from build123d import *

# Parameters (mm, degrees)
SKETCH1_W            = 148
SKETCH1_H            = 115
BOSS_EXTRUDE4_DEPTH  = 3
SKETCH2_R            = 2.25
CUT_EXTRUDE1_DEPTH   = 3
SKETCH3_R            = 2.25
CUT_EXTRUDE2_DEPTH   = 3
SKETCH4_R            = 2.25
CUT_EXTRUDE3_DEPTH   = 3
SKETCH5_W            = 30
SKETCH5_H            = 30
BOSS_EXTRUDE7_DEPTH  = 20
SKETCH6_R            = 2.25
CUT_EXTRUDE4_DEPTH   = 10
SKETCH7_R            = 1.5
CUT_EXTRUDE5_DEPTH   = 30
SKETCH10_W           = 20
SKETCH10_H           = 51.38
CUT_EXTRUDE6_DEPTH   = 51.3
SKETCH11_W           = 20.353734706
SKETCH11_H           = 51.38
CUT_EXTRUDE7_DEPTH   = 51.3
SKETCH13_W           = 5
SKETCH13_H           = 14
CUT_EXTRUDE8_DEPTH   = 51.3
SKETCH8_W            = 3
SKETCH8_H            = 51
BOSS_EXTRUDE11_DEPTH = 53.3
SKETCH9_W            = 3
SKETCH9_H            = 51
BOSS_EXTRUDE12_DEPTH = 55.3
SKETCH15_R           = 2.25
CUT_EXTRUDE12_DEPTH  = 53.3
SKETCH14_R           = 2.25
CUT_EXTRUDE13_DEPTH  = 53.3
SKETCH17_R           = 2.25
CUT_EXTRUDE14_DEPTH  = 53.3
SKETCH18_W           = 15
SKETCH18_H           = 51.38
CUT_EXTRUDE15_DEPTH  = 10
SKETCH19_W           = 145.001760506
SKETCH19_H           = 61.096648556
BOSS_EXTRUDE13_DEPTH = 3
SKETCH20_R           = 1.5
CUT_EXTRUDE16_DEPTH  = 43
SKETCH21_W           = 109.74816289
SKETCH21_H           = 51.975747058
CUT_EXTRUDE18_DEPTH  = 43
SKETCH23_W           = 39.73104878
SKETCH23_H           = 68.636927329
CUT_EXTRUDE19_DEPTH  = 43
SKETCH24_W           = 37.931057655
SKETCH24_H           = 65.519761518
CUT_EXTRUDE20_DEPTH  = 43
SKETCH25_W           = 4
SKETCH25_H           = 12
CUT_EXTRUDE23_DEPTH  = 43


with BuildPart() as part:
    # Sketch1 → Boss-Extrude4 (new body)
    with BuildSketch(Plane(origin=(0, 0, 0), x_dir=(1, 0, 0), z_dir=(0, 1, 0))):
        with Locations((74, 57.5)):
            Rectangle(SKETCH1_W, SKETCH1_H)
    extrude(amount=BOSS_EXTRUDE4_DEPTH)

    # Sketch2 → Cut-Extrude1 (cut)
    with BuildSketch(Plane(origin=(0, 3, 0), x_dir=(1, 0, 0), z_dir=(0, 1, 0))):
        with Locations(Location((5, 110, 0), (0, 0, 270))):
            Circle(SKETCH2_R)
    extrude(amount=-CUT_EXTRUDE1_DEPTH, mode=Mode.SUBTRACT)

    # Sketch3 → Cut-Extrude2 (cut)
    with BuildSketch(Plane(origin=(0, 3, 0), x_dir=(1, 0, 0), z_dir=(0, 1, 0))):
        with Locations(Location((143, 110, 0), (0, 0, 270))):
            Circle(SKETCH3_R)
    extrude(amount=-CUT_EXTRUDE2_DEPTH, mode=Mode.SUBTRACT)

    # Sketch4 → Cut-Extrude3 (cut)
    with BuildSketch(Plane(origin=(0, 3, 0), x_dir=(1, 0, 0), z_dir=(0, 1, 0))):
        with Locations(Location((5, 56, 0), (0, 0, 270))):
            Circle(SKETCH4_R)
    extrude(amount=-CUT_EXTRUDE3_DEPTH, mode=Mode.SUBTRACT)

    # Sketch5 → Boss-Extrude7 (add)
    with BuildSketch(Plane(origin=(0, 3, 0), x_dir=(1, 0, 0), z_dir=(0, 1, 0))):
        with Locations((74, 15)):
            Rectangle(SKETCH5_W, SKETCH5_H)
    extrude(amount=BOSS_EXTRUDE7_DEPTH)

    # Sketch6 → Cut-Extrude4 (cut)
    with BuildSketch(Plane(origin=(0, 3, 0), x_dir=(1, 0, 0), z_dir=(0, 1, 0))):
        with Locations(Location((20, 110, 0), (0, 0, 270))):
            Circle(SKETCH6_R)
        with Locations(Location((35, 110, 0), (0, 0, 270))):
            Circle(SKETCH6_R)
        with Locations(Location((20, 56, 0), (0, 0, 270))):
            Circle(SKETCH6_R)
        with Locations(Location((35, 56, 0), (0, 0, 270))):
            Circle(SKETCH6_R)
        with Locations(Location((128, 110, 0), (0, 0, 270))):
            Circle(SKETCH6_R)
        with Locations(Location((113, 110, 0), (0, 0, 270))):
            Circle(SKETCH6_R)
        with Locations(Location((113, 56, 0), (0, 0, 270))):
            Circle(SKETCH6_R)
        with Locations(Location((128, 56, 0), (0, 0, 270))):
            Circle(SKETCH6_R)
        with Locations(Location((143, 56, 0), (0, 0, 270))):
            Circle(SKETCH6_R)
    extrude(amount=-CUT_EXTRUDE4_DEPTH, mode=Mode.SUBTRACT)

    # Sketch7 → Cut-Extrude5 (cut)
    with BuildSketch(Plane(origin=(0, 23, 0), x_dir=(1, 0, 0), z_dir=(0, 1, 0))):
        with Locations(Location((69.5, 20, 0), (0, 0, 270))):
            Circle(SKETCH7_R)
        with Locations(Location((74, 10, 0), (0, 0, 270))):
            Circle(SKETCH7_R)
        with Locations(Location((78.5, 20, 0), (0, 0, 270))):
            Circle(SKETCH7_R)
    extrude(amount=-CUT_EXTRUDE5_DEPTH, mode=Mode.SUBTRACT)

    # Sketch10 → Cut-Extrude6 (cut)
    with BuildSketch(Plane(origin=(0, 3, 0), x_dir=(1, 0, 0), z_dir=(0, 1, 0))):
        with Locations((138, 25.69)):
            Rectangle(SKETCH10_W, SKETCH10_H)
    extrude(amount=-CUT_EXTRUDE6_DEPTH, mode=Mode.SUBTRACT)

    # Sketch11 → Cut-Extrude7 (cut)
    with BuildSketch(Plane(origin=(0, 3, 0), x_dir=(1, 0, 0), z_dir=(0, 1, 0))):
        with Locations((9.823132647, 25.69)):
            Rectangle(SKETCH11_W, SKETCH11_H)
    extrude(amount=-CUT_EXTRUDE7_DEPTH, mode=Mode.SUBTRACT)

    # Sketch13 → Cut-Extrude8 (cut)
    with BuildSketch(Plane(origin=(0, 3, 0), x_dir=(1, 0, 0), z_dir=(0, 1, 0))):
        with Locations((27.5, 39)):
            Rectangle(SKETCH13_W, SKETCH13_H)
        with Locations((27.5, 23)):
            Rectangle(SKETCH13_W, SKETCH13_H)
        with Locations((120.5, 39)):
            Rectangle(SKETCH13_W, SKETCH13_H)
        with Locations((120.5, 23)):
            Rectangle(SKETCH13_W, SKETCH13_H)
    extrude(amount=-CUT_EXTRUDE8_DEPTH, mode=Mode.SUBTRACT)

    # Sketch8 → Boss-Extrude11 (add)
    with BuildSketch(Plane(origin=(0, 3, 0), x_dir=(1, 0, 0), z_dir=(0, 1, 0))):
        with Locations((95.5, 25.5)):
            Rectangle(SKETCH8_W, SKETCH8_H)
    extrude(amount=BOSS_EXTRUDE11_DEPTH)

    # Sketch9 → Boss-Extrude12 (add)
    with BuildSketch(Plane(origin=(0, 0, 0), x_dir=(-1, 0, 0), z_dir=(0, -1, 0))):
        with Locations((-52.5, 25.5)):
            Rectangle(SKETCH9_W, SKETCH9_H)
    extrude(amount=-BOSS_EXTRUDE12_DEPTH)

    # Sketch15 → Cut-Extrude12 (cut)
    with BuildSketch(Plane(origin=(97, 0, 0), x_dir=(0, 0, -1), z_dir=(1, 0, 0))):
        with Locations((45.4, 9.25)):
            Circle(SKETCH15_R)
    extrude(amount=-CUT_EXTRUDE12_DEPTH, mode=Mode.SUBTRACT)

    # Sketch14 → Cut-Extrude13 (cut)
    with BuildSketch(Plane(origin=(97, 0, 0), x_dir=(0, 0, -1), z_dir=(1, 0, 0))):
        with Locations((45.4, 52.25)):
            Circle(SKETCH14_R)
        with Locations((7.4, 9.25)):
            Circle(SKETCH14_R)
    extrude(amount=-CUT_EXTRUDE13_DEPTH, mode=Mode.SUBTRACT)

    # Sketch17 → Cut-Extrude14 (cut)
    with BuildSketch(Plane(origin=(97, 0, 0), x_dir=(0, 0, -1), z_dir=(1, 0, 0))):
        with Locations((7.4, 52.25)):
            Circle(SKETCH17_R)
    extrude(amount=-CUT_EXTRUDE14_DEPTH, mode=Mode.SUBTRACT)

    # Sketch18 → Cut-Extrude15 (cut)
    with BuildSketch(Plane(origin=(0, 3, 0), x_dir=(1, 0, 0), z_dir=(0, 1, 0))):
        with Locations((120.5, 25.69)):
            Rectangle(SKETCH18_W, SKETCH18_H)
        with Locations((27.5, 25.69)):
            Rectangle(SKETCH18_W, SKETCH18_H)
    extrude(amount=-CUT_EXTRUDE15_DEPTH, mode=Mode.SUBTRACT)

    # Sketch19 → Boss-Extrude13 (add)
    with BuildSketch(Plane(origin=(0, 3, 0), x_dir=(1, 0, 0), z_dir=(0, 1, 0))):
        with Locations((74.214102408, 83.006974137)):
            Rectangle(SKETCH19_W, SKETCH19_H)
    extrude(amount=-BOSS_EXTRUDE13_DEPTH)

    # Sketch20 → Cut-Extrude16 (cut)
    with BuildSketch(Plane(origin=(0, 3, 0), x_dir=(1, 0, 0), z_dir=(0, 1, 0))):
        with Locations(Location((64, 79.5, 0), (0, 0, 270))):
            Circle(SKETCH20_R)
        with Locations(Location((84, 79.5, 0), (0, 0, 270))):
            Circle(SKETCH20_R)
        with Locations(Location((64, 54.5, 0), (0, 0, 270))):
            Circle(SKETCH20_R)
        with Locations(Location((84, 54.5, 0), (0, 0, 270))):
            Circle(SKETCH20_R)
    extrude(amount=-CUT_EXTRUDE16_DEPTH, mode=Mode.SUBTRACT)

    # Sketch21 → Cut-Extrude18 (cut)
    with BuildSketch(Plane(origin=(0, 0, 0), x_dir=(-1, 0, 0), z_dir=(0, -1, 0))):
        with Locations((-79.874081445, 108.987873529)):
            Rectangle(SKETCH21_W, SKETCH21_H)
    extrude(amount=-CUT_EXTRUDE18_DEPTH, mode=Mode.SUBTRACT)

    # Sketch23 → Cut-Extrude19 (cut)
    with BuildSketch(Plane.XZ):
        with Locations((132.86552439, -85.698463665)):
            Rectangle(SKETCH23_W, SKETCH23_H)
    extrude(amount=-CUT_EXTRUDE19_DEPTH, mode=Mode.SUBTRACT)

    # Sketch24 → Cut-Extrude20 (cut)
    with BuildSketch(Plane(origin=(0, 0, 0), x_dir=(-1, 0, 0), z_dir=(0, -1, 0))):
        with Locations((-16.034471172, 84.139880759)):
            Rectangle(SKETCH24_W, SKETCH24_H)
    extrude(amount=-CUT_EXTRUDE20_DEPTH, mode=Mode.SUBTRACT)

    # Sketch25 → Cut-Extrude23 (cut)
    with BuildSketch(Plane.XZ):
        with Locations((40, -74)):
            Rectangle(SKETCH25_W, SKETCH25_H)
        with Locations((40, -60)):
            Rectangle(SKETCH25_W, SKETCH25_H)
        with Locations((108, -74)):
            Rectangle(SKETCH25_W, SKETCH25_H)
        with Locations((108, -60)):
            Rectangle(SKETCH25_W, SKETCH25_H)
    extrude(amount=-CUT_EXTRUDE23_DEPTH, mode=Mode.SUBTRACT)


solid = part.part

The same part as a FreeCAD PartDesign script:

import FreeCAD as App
import Part
import Sketcher

V = App.Vector

doc = App.newDocument("Part")
body = doc.addObject("PartDesign::Body", "Body")

sketch1 = body.newObject("Sketcher::SketchObject", "Sketch")
sketch1.AttachmentSupport = (doc.getObject("XZ_Plane"), [""])
sketch1.MapMode = "FlatFace"
sketch1.addGeometry(Part.LineSegment(V(0, -115, 0), V(0, 0, 0)), False)
sketch1.addGeometry(Part.LineSegment(V(0, 0, 0), V(148, 0, 0)), False)
sketch1.addGeometry(Part.LineSegment(V(148, 0, 0), V(148, -115, 0)), False)
sketch1.addGeometry(Part.LineSegment(V(148, -115, 0), V(0, -115, 0)), False)
sketch1.addConstraint(Sketcher.Constraint("Coincident", 0, 2, 1, 1))
sketch1.addConstraint(Sketcher.Constraint("Coincident", 1, 2, 2, 1))
sketch1.addConstraint(Sketcher.Constraint("Coincident", 2, 2, 3, 1))
sketch1.addConstraint(Sketcher.Constraint("Coincident", 3, 2, 0, 1))
sketch1.addConstraint(Sketcher.Constraint("Vertical", 0))
sketch1.addConstraint(Sketcher.Constraint("Horizontal", 1))
sketch1.addConstraint(Sketcher.Constraint("Vertical", 2))
sketch1.addConstraint(Sketcher.Constraint("Horizontal", 3))
sketch1.addConstraint(Sketcher.Constraint("Coincident", 0, 2, -1, 1))
sketch1.addConstraint(Sketcher.Constraint("DistanceX", 1, 1, 1, 2, 148.0))
sketch1.addConstraint(Sketcher.Constraint("DistanceY", 0, 1, 0, 2, 115.0))
pad1 = body.newObject("PartDesign::Pad", "Pad")
pad1.Profile = sketch1
pad1.Length = 3
pad1.Reversed = True

sketch2 = body.newObject("Sketcher::SketchObject", "Sketch001")
sketch2.AttachmentSupport = (doc.getObject("XZ_Plane"), [""])
sketch2.MapMode = "FlatFace"
sketch2.AttachmentOffset = App.Placement(V(0, 0, -3), App.Rotation())
sketch2.addGeometry(Part.Circle(V(5, -110, 0), V(0, 0, 1), 2.2), False)
sketch2.addConstraint(Sketcher.Constraint("Diameter", 0, 4.5))
sketch2.addConstraint(Sketcher.Constraint("DistanceX", -1, 1, 0, 3, 5.0))
sketch2.addConstraint(Sketcher.Constraint("DistanceY", 0, 3, -1, 1, 110.0))
pocket1 = body.newObject("PartDesign::Pocket", "Pocket")
pocket1.Profile = sketch2
pocket1.Length = 3
pocket1.Reversed = True

sketch3 = body.newObject("Sketcher::SketchObject", "Sketch002")
sketch3.AttachmentSupport = (doc.getObject("XZ_Plane"), [""])
sketch3.MapMode = "FlatFace"
sketch3.AttachmentOffset = App.Placement(V(0, 0, -3), App.Rotation())
sketch3.addGeometry(Part.Circle(V(143, -110, 0), V(0, 0, 1), 2.2), False)
sketch3.addConstraint(Sketcher.Constraint("Diameter", 0, 4.5))
sketch3.addConstraint(Sketcher.Constraint("DistanceX", -1, 1, 0, 3, 143.0))
sketch3.addConstraint(Sketcher.Constraint("DistanceY", 0, 3, -1, 1, 110.0))
pocket2 = body.newObject("PartDesign::Pocket", "Pocket001")
pocket2.Profile = sketch3
pocket2.Length = 3
pocket2.Reversed = True

sketch4 = body.newObject("Sketcher::SketchObject", "Sketch003")
sketch4.AttachmentSupport = (doc.getObject("XZ_Plane"), [""])
sketch4.MapMode = "FlatFace"
sketch4.AttachmentOffset = App.Placement(V(0, 0, -3), App.Rotation())
sketch4.addGeometry(Part.Circle(V(5, -56, 0), V(0, 0, 1), 2.2), False)
sketch4.addConstraint(Sketcher.Constraint("Diameter", 0, 4.5))
sketch4.addConstraint(Sketcher.Constraint("DistanceX", -1, 1, 0, 3, 5.0))
sketch4.addConstraint(Sketcher.Constraint("DistanceY", 0, 3, -1, 1, 56.0))
pocket3 = body.newObject("PartDesign::Pocket", "Pocket002")
pocket3.Profile = sketch4
pocket3.Length = 3
pocket3.Reversed = True

sketch5 = body.newObject("Sketcher::SketchObject", "Sketch004")
sketch5.AttachmentSupport = (doc.getObject("XZ_Plane"), [""])
sketch5.MapMode = "FlatFace"
sketch5.AttachmentOffset = App.Placement(V(0, 0, -3), App.Rotation())
sketch5.addGeometry(Part.LineSegment(V(59, -30, 0), V(59, 0, 0)), False)
sketch5.addGeometry(Part.LineSegment(V(59, 0, 0), V(89, 0, 0)), False)
sketch5.addGeometry(Part.LineSegment(V(89, 0, 0), V(89, -30, 0)), False)
sketch5.addGeometry(Part.LineSegment(V(89, -30, 0), V(59, -30, 0)), False)
sketch5.addConstraint(Sketcher.Constraint("Coincident", 0, 2, 1, 1))
sketch5.addConstraint(Sketcher.Constraint("Coincident", 1, 2, 2, 1))
sketch5.addConstraint(Sketcher.Constraint("Coincident", 2, 2, 3, 1))
sketch5.addConstraint(Sketcher.Constraint("Coincident", 3, 2, 0, 1))
sketch5.addConstraint(Sketcher.Constraint("Vertical", 0))
sketch5.addConstraint(Sketcher.Constraint("Horizontal", 1))
sketch5.addConstraint(Sketcher.Constraint("Vertical", 2))
sketch5.addConstraint(Sketcher.Constraint("Horizontal", 3))
sketch5.addConstraint(Sketcher.Constraint("PointOnObject", 0, 2, -1))
sketch5.addConstraint(Sketcher.Constraint("Equal", 3, 0))
sketch5.addConstraint(Sketcher.Constraint("DistanceX", 1, 1, 1, 2, 30.0))
sketch5.addConstraint(Sketcher.Constraint("DistanceX", -1, 1, 0, 2, 59.0))
pad2 = body.newObject("PartDesign::Pad", "Pad001")
pad2.Profile = sketch5
pad2.Length = 20
pad2.Reversed = True

sketch6 = body.newObject("Sketcher::SketchObject", "Sketch005")
sketch6.AttachmentSupport = (doc.getObject("XZ_Plane"), [""])
sketch6.MapMode = "FlatFace"
sketch6.AttachmentOffset = App.Placement(V(0, 0, -3), App.Rotation())
sketch6.addGeometry(Part.Circle(V(20, -110, 0), V(0, 0, 1), 2.2), False)
sketch6.addGeometry(Part.Circle(V(35, -110, 0), V(0, 0, 1), 2.2), False)
sketch6.addGeometry(Part.Circle(V(20, -56, 0), V(0, 0, 1), 2.2), False)
sketch6.addGeometry(Part.Circle(V(35, -56, 0), V(0, 0, 1), 2.2), False)
sketch6.addGeometry(Part.Circle(V(128, -110, 0), V(0, 0, 1), 2.2), False)
sketch6.addGeometry(Part.Circle(V(113, -110, 0), V(0, 0, 1), 2.2), False)
sketch6.addGeometry(Part.Circle(V(113, -56, 0), V(0, 0, 1), 2.2), False)
sketch6.addGeometry(Part.Circle(V(128, -56, 0), V(0, 0, 1), 2.2), False)
sketch6.addGeometry(Part.Circle(V(143, -56, 0), V(0, 0, 1), 2.2), False)
sketch6.addConstraint(Sketcher.Constraint("Equal", 0, 1))
sketch6.addConstraint(Sketcher.Constraint("Equal", 1, 2))
sketch6.addConstraint(Sketcher.Constraint("Equal", 2, 3))
sketch6.addConstraint(Sketcher.Constraint("Equal", 3, 4))
sketch6.addConstraint(Sketcher.Constraint("Equal", 4, 5))
sketch6.addConstraint(Sketcher.Constraint("Equal", 5, 6))
sketch6.addConstraint(Sketcher.Constraint("Equal", 6, 7))
sketch6.addConstraint(Sketcher.Constraint("Equal", 7, 8))
sketch6.addConstraint(Sketcher.Constraint("Horizontal", 0, 3, 1, 3))
sketch6.addConstraint(Sketcher.Constraint("Horizontal", 2, 3, 3, 3))
sketch6.addConstraint(Sketcher.Constraint("Horizontal", 1, 3, 4, 3))
sketch6.addConstraint(Sketcher.Constraint("Horizontal", 4, 3, 5, 3))
sketch6.addConstraint(Sketcher.Constraint("Horizontal", 3, 3, 6, 3))
sketch6.addConstraint(Sketcher.Constraint("Horizontal", 6, 3, 7, 3))
sketch6.addConstraint(Sketcher.Constraint("Horizontal", 7, 3, 8, 3))
sketch6.addConstraint(Sketcher.Constraint("Vertical", 0, 3, 2, 3))
sketch6.addConstraint(Sketcher.Constraint("Vertical", 1, 3, 3, 3))
sketch6.addConstraint(Sketcher.Constraint("Vertical", 5, 3, 6, 3))
sketch6.addConstraint(Sketcher.Constraint("Vertical", 4, 3, 7, 3))
sketch6.addConstraint(Sketcher.Constraint("Diameter", 0, 4.5))
sketch6.addConstraint(Sketcher.Constraint("DistanceX", -1, 1, 0, 3, 20.0))
sketch6.addConstraint(Sketcher.Constraint("DistanceY", 0, 3, -1, 1, 110.0))
sketch6.addConstraint(Sketcher.Constraint("DistanceX", -1, 1, 1, 3, 35.0))
sketch6.addConstraint(Sketcher.Constraint("DistanceY", 2, 3, -1, 1, 56.0))
sketch6.addConstraint(Sketcher.Constraint("DistanceX", -1, 1, 4, 3, 128.0))
sketch6.addConstraint(Sketcher.Constraint("DistanceX", -1, 1, 5, 3, 113.0))
sketch6.addConstraint(Sketcher.Constraint("DistanceX", -1, 1, 8, 3, 143.0))
pocket4 = body.newObject("PartDesign::Pocket", "Pocket003")
pocket4.Profile = sketch6
pocket4.Length = 10
pocket4.Reversed = True

sketch7 = body.newObject("Sketcher::SketchObject", "Sketch006")
sketch7.AttachmentSupport = (doc.getObject("XZ_Plane"), [""])
sketch7.MapMode = "FlatFace"
sketch7.AttachmentOffset = App.Placement(V(0, 0, -23), App.Rotation())
sketch7.addGeometry(Part.Circle(V(69.5, -20, 0), V(0, 0, 1), 1.5), False)
sketch7.addGeometry(Part.Circle(V(74, -10, 0), V(0, 0, 1), 1.5), False)
sketch7.addGeometry(Part.Circle(V(78.5, -20, 0), V(0, 0, 1), 1.5), False)
sketch7.addConstraint(Sketcher.Constraint("Equal", 0, 1))
sketch7.addConstraint(Sketcher.Constraint("Equal", 1, 2))
sketch7.addConstraint(Sketcher.Constraint("Horizontal", 0, 3, 2, 3))
sketch7.addConstraint(Sketcher.Constraint("Diameter", 0, 3.0))
sketch7.addConstraint(Sketcher.Constraint("DistanceY", 0, 3, -1, 1, 20.0))
sketch7.addConstraint(Sketcher.Constraint("DistanceX", -1, 1, 1, 3, 74.0))
sketch7.addConstraint(Sketcher.Constraint("DistanceY", 1, 3, -1, 1, 10.0))
sketch7.addConstraint(Sketcher.Constraint("DistanceX", 0, 3, 2, 3, 9.0))
sketch7.addConstraint(Sketcher.Constraint("DistanceX", -1, 1, 0, 3, 69.5))
pocket5 = body.newObject("PartDesign::Pocket", "Pocket004")
pocket5.Profile = sketch7
pocket5.Length = 30
pocket5.Reversed = True

sketch8 = body.newObject("Sketcher::SketchObject", "Sketch007")
sketch8.AttachmentSupport = (doc.getObject("XZ_Plane"), [""])
sketch8.MapMode = "FlatFace"
sketch8.AttachmentOffset = App.Placement(V(0, 0, -3), App.Rotation())
sketch8.addGeometry(Part.LineSegment(V(128, -51, 0), V(128, 0, 0)), False)
sketch8.addGeometry(Part.LineSegment(V(128, 0, 0), V(148, 0, 0)), False)
sketch8.addGeometry(Part.LineSegment(V(148, 0, 0), V(148, -51, 0)), False)
sketch8.addGeometry(Part.LineSegment(V(148, -51, 0), V(128, -51, 0)), False)
sketch8.addConstraint(Sketcher.Constraint("Coincident", 0, 2, 1, 1))
sketch8.addConstraint(Sketcher.Constraint("Coincident", 1, 2, 2, 1))
sketch8.addConstraint(Sketcher.Constraint("Coincident", 2, 2, 3, 1))
sketch8.addConstraint(Sketcher.Constraint("Coincident", 3, 2, 0, 1))
sketch8.addConstraint(Sketcher.Constraint("Vertical", 0))
sketch8.addConstraint(Sketcher.Constraint("Horizontal", 1))
sketch8.addConstraint(Sketcher.Constraint("Vertical", 2))
sketch8.addConstraint(Sketcher.Constraint("Horizontal", 3))
sketch8.addConstraint(Sketcher.Constraint("PointOnObject", 0, 2, -1))
sketch8.addConstraint(Sketcher.Constraint("DistanceX", 1, 1, 1, 2, 20.0))
sketch8.addConstraint(Sketcher.Constraint("DistanceX", -1, 1, 0, 2, 128.0))
sketch8.addConstraint(Sketcher.Constraint("DistanceY", 0, 1, 0, 2, 51.38))
pocket6 = body.newObject("PartDesign::Pocket", "Pocket005")
pocket6.Profile = sketch8
pocket6.Length = 51.3
pocket6.Reversed = True

sketch9 = body.newObject("Sketcher::SketchObject", "Sketch008")
sketch9.AttachmentSupport = (doc.getObject("XZ_Plane"), [""])
sketch9.MapMode = "FlatFace"
sketch9.AttachmentOffset = App.Placement(V(0, 0, -3), App.Rotation())
sketch9.addGeometry(Part.LineSegment(V(0, -51, 0), V(0, 0, 0)), False)
sketch9.addGeometry(Part.LineSegment(V(0, 0, 0), V(20, 0, 0)), False)
sketch9.addGeometry(Part.LineSegment(V(20, 0, 0), V(20, -51, 0)), False)
sketch9.addGeometry(Part.LineSegment(V(20, -51, 0), V(0, -51, 0)), False)
sketch9.addConstraint(Sketcher.Constraint("Coincident", 0, 2, 1, 1))
sketch9.addConstraint(Sketcher.Constraint("Coincident", 1, 2, 2, 1))
sketch9.addConstraint(Sketcher.Constraint("Coincident", 2, 2, 3, 1))
sketch9.addConstraint(Sketcher.Constraint("Coincident", 3, 2, 0, 1))
sketch9.addConstraint(Sketcher.Constraint("Vertical", 0))
sketch9.addConstraint(Sketcher.Constraint("Horizontal", 1))
sketch9.addConstraint(Sketcher.Constraint("Vertical", 2))
sketch9.addConstraint(Sketcher.Constraint("Horizontal", 3))
sketch9.addConstraint(Sketcher.Constraint("PointOnObject", 0, 2, -1))
sketch9.addConstraint(Sketcher.Constraint("DistanceX", -1, 1, 1, 2, 20.0))
sketch9.addConstraint(Sketcher.Constraint("DistanceY", 0, 1, 0, 2, 51.38))
sketch9.addConstraint(Sketcher.Constraint("DistanceX", 1, 1, 1, 2, 20.353735))
pocket7 = body.newObject("PartDesign::Pocket", "Pocket006")
pocket7.Profile = sketch9
pocket7.Length = 51.3
pocket7.Reversed = True

sketch10 = body.newObject("Sketcher::SketchObject", "Sketch009")
sketch10.AttachmentSupport = (doc.getObject("XZ_Plane"), [""])
sketch10.MapMode = "FlatFace"
sketch10.AttachmentOffset = App.Placement(V(0, 0, -3), App.Rotation())
sketch10.addGeometry(Part.LineSegment(V(25, -46, 0), V(25, -32, 0)), False)
sketch10.addGeometry(Part.LineSegment(V(25, -32, 0), V(30, -32, 0)), False)
sketch10.addGeometry(Part.LineSegment(V(30, -32, 0), V(30, -46, 0)), False)
sketch10.addGeometry(Part.LineSegment(V(30, -46, 0), V(25, -46, 0)), False)
sketch10.addGeometry(Part.LineSegment(V(25, -30, 0), V(25, -16, 0)), False)
sketch10.addGeometry(Part.LineSegment(V(25, -16, 0), V(30, -16, 0)), False)
sketch10.addGeometry(Part.LineSegment(V(30, -16, 0), V(30, -30, 0)), False)
sketch10.addGeometry(Part.LineSegment(V(30, -30, 0), V(25, -30, 0)), False)
sketch10.addGeometry(Part.LineSegment(V(118, -46, 0), V(118, -32, 0)), False)
sketch10.addGeometry(Part.LineSegment(V(118, -32, 0), V(123, -32, 0)), False)
sketch10.addGeometry(Part.LineSegment(V(123, -32, 0), V(123, -46, 0)), False)
sketch10.addGeometry(Part.LineSegment(V(123, -46, 0), V(118, -46, 0)), False)
sketch10.addGeometry(Part.LineSegment(V(118, -30, 0), V(118, -16, 0)), False)
sketch10.addGeometry(Part.LineSegment(V(118, -16, 0), V(123, -16, 0)), False)
sketch10.addGeometry(Part.LineSegment(V(123, -16, 0), V(123, -30, 0)), False)
sketch10.addGeometry(Part.LineSegment(V(123, -30, 0), V(118, -30, 0)), False)
sketch10.addConstraint(Sketcher.Constraint("Coincident", 0, 2, 1, 1))
sketch10.addConstraint(Sketcher.Constraint("Coincident", 1, 2, 2, 1))
sketch10.addConstraint(Sketcher.Constraint("Coincident", 2, 2, 3, 1))
sketch10.addConstraint(Sketcher.Constraint("Coincident", 3, 2, 0, 1))
sketch10.addConstraint(Sketcher.Constraint("Coincident", 4, 2, 5, 1))
sketch10.addConstraint(Sketcher.Constraint("Coincident", 5, 2, 6, 1))
sketch10.addConstraint(Sketcher.Constraint("Coincident", 6, 2, 7, 1))
sketch10.addConstraint(Sketcher.Constraint("Coincident", 7, 2, 4, 1))
sketch10.addConstraint(Sketcher.Constraint("Coincident", 8, 2, 9, 1))
sketch10.addConstraint(Sketcher.Constraint("Coincident", 9, 2, 10, 1))
sketch10.addConstraint(Sketcher.Constraint("Coincident", 10, 2, 11, 1))
sketch10.addConstraint(Sketcher.Constraint("Coincident", 11, 2, 8, 1))
sketch10.addConstraint(Sketcher.Constraint("Coincident", 12, 2, 13, 1))
sketch10.addConstraint(Sketcher.Constraint("Coincident", 13, 2, 14, 1))
sketch10.addConstraint(Sketcher.Constraint("Coincident", 14, 2, 15, 1))
sketch10.addConstraint(Sketcher.Constraint("Coincident", 15, 2, 12, 1))
sketch10.addConstraint(Sketcher.Constraint("Vertical", 0))
sketch10.addConstraint(Sketcher.Constraint("Horizontal", 1))
sketch10.addConstraint(Sketcher.Constraint("Vertical", 2))
sketch10.addConstraint(Sketcher.Constraint("Horizontal", 3))
sketch10.addConstraint(Sketcher.Constraint("Vertical", 4))
sketch10.addConstraint(Sketcher.Constraint("Horizontal", 5))
sketch10.addConstraint(Sketcher.Constraint("Vertical", 6))
sketch10.addConstraint(Sketcher.Constraint("Horizontal", 7))
sketch10.addConstraint(Sketcher.Constraint("Vertical", 8))
sketch10.addConstraint(Sketcher.Constraint("Horizontal", 9))
sketch10.addConstraint(Sketcher.Constraint("Vertical", 10))
sketch10.addConstraint(Sketcher.Constraint("Horizontal", 11))
sketch10.addConstraint(Sketcher.Constraint("Vertical", 12))
sketch10.addConstraint(Sketcher.Constraint("Horizontal", 13))
sketch10.addConstraint(Sketcher.Constraint("Vertical", 14))
sketch10.addConstraint(Sketcher.Constraint("Horizontal", 15))
sketch10.addConstraint(Sketcher.Constraint("Horizontal", 1, 2, 8, 2))
sketch10.addConstraint(Sketcher.Constraint("Horizontal", 3, 2, 10, 2))
sketch10.addConstraint(Sketcher.Constraint("Horizontal", 5, 2, 12, 2))
sketch10.addConstraint(Sketcher.Constraint("Horizontal", 7, 2, 14, 2))
sketch10.addConstraint(Sketcher.Constraint("Vertical", 3, 2, 4, 2))
sketch10.addConstraint(Sketcher.Constraint("Vertical", 2, 2, 5, 2))
sketch10.addConstraint(Sketcher.Constraint("Vertical", 11, 2, 12, 2))
sketch10.addConstraint(Sketcher.Constraint("Vertical", 10, 2, 13, 2))
sketch10.addConstraint(Sketcher.Constraint("Equal", 7, 9))
sketch10.addConstraint(Sketcher.Constraint("Equal", 2, 4))
sketch10.addConstraint(Sketcher.Constraint("DistanceX", 1, 1, 1, 2, 5.0))
sketch10.addConstraint(Sketcher.Constraint("DistanceY", 0, 1, 0, 2, 14.0))
sketch10.addConstraint(Sketcher.Constraint("DistanceX", -1, 1, 0, 2, 25.0))
sketch10.addConstraint(Sketcher.Constraint("DistanceY", 0, 2, -1, 1, 32.0))
sketch10.addConstraint(Sketcher.Constraint("DistanceY", 4, 2, -1, 1, 16.0))
sketch10.addConstraint(Sketcher.Constraint("DistanceX", -1, 1, 8, 2, 118.0))
pocket8 = body.newObject("PartDesign::Pocket", "Pocket007")
pocket8.Profile = sketch10
pocket8.Length = 51.3
pocket8.Reversed = True

sketch11 = body.newObject("Sketcher::SketchObject", "Sketch010")
sketch11.AttachmentSupport = (doc.getObject("XZ_Plane"), [""])
sketch11.MapMode = "FlatFace"
sketch11.AttachmentOffset = App.Placement(V(0, 0, -3), App.Rotation())
sketch11.addGeometry(Part.LineSegment(V(94, -51, 0), V(94, 0, 0)), False)
sketch11.addGeometry(Part.LineSegment(V(94, 0, 0), V(97, 0, 0)), False)
sketch11.addGeometry(Part.LineSegment(V(97, 0, 0), V(97, -51, 0)), False)
sketch11.addGeometry(Part.LineSegment(V(97, -51, 0), V(94, -51, 0)), False)
sketch11.addConstraint(Sketcher.Constraint("Coincident", 0, 2, 1, 1))
sketch11.addConstraint(Sketcher.Constraint("Coincident", 1, 2, 2, 1))
sketch11.addConstraint(Sketcher.Constraint("Coincident", 2, 2, 3, 1))
sketch11.addConstraint(Sketcher.Constraint("Coincident", 3, 2, 0, 1))
sketch11.addConstraint(Sketcher.Constraint("Vertical", 0))
sketch11.addConstraint(Sketcher.Constraint("Horizontal", 1))
sketch11.addConstraint(Sketcher.Constraint("Vertical", 2))
sketch11.addConstraint(Sketcher.Constraint("Horizontal", 3))
sketch11.addConstraint(Sketcher.Constraint("PointOnObject", 0, 2, -1))
sketch11.addConstraint(Sketcher.Constraint("DistanceX", 1, 1, 1, 2, 3.0))
sketch11.addConstraint(Sketcher.Constraint("DistanceY", 0, 1, 0, 2, 51.0))
sketch11.addConstraint(Sketcher.Constraint("DistanceX", -1, 1, 0, 2, 94.0))
pad3 = body.newObject("PartDesign::Pad", "Pad002")
pad3.Profile = sketch11
pad3.Length = 53.3
pad3.Reversed = True

sketch12 = body.newObject("Sketcher::SketchObject", "Sketch011")
sketch12.AttachmentSupport = (doc.getObject("XZ_Plane"), [""])
sketch12.MapMode = "FlatFace"
sketch12.addGeometry(Part.LineSegment(V(54, -51, 0), V(54, 0, 0)), False)
sketch12.addGeometry(Part.LineSegment(V(54, 0, 0), V(51, 0, 0)), False)
sketch12.addGeometry(Part.LineSegment(V(51, 0, 0), V(51, -51, 0)), False)
sketch12.addGeometry(Part.LineSegment(V(51, -51, 0), V(54, -51, 0)), False)
sketch12.addConstraint(Sketcher.Constraint("Coincident", 0, 2, 1, 1))
sketch12.addConstraint(Sketcher.Constraint("Coincident", 1, 2, 2, 1))
sketch12.addConstraint(Sketcher.Constraint("Coincident", 2, 2, 3, 1))
sketch12.addConstraint(Sketcher.Constraint("Coincident", 3, 2, 0, 1))
sketch12.addConstraint(Sketcher.Constraint("Vertical", 0))
sketch12.addConstraint(Sketcher.Constraint("Horizontal", 1))
sketch12.addConstraint(Sketcher.Constraint("Vertical", 2))
sketch12.addConstraint(Sketcher.Constraint("Horizontal", 3))
sketch12.addConstraint(Sketcher.Constraint("PointOnObject", 0, 2, -1))
sketch12.addConstraint(Sketcher.Constraint("DistanceX", 1, 2, 1, 1, 3.0))
sketch12.addConstraint(Sketcher.Constraint("DistanceY", 0, 1, 0, 2, 51.0))
sketch12.addConstraint(Sketcher.Constraint("DistanceX", -1, 1, 0, 2, 54.0))
pad4 = body.newObject("PartDesign::Pad", "Pad003")
pad4.Profile = sketch12
pad4.Length = 55.3
pad4.Reversed = True

sketch13 = body.newObject("Sketcher::SketchObject", "Sketch012")
sketch13.AttachmentSupport = (doc.getObject("YZ_Plane"), [""])
sketch13.MapMode = "FlatFace"
sketch13.AttachmentOffset = App.Placement(V(0, 0, 97), App.Rotation())
sketch13.addGeometry(Part.Circle(V(9.2, -45.4, 0), V(0, 0, 1), 2.2), False)
sketch13.addConstraint(Sketcher.Constraint("Diameter", 0, 4.5))
sketch13.addConstraint(Sketcher.Constraint("DistanceY", 0, 3, -1, 1, 45.4))
sketch13.addConstraint(Sketcher.Constraint("DistanceX", -1, 1, 0, 3, 9.25))
pocket9 = body.newObject("PartDesign::Pocket", "Pocket008")
pocket9.Profile = sketch13
pocket9.Length = 53.3

sketch14 = body.newObject("Sketcher::SketchObject", "Sketch013")
sketch14.AttachmentSupport = (doc.getObject("YZ_Plane"), [""])
sketch14.MapMode = "FlatFace"
sketch14.AttachmentOffset = App.Placement(V(0, 0, 97), App.Rotation())
sketch14.addGeometry(Part.Circle(V(52.2, -45.4, 0), V(0, 0, 1), 2.2), False)
sketch14.addGeometry(Part.Circle(V(9.2, -7.4, 0), V(0, 0, 1), 2.2), False)
sketch14.addConstraint(Sketcher.Constraint("Equal", 0, 1))
sketch14.addConstraint(Sketcher.Constraint("Diameter", 0, 4.5))
sketch14.addConstraint(Sketcher.Constraint("DistanceX", 1, 3, 0, 3, 43.0))
sketch14.addConstraint(Sketcher.Constraint("DistanceY", 0, 3, 1, 3, 38.0))
sketch14.addConstraint(Sketcher.Constraint("DistanceY", 0, 3, -1, 1, 45.4))
sketch14.addConstraint(Sketcher.Constraint("DistanceX", -1, 1, 0, 3, 52.25))
pocket10 = body.newObject("PartDesign::Pocket", "Pocket009")
pocket10.Profile = sketch14
pocket10.Length = 53.3

sketch15 = body.newObject("Sketcher::SketchObject", "Sketch014")
sketch15.AttachmentSupport = (doc.getObject("YZ_Plane"), [""])
sketch15.MapMode = "FlatFace"
sketch15.AttachmentOffset = App.Placement(V(0, 0, 97), App.Rotation())
sketch15.addGeometry(Part.Circle(V(52.2, -7.4, 0), V(0, 0, 1), 2.2), False)
sketch15.addConstraint(Sketcher.Constraint("Diameter", 0, 4.5))
sketch15.addConstraint(Sketcher.Constraint("DistanceY", 0, 3, -1, 1, 7.4))
sketch15.addConstraint(Sketcher.Constraint("DistanceX", -1, 1, 0, 3, 52.25))
pocket11 = body.newObject("PartDesign::Pocket", "Pocket010")
pocket11.Profile = sketch15
pocket11.Length = 53.3

sketch16 = body.newObject("Sketcher::SketchObject", "Sketch015")
sketch16.AttachmentSupport = (doc.getObject("XZ_Plane"), [""])
sketch16.MapMode = "FlatFace"
sketch16.AttachmentOffset = App.Placement(V(0, 0, -3), App.Rotation())
sketch16.addGeometry(Part.LineSegment(V(113, -51, 0), V(113, 0, 0)), False)
sketch16.addGeometry(Part.LineSegment(V(113, 0, 0), V(128, 0, 0)), False)
sketch16.addGeometry(Part.LineSegment(V(128, 0, 0), V(128, -51, 0)), False)
sketch16.addGeometry(Part.LineSegment(V(128, -51, 0), V(113, -51, 0)), False)
sketch16.addGeometry(Part.LineSegment(V(20, -51, 0), V(20, 0, 0)), False)
sketch16.addGeometry(Part.LineSegment(V(20, 0, 0), V(35, 0, 0)), False)
sketch16.addGeometry(Part.LineSegment(V(35, 0, 0), V(35, -51, 0)), False)
sketch16.addGeometry(Part.LineSegment(V(35, -51, 0), V(20, -51, 0)), False)
sketch16.addConstraint(Sketcher.Constraint("Coincident", 0, 2, 1, 1))
sketch16.addConstraint(Sketcher.Constraint("Coincident", 1, 2, 2, 1))
sketch16.addConstraint(Sketcher.Constraint("Coincident", 2, 2, 3, 1))
sketch16.addConstraint(Sketcher.Constraint("Coincident", 3, 2, 0, 1))
sketch16.addConstraint(Sketcher.Constraint("Coincident", 4, 2, 5, 1))
sketch16.addConstraint(Sketcher.Constraint("Coincident", 5, 2, 6, 1))
sketch16.addConstraint(Sketcher.Constraint("Coincident", 6, 2, 7, 1))
sketch16.addConstraint(Sketcher.Constraint("Coincident", 7, 2, 4, 1))
sketch16.addConstraint(Sketcher.Constraint("Vertical", 0))
sketch16.addConstraint(Sketcher.Constraint("Horizontal", 1))
sketch16.addConstraint(Sketcher.Constraint("Vertical", 2))
sketch16.addConstraint(Sketcher.Constraint("Horizontal", 3))
sketch16.addConstraint(Sketcher.Constraint("Vertical", 4))
sketch16.addConstraint(Sketcher.Constraint("Horizontal", 5))
sketch16.addConstraint(Sketcher.Constraint("Vertical", 6))
sketch16.addConstraint(Sketcher.Constraint("Horizontal", 7))
sketch16.addConstraint(Sketcher.Constraint("PointOnObject", 0, 2, -1))
sketch16.addConstraint(Sketcher.Constraint("PointOnObject", 4, 2, -1))
sketch16.addConstraint(Sketcher.Constraint("Horizontal", 3, 2, 6, 2))
sketch16.addConstraint(Sketcher.Constraint("Equal", 3, 5))
sketch16.addConstraint(Sketcher.Constraint("DistanceX", 1, 1, 1, 2, 15.0))
sketch16.addConstraint(Sketcher.Constraint("DistanceX", -1, 1, 0, 2, 113.0))
sketch16.addConstraint(Sketcher.Constraint("DistanceX", -1, 1, 4, 2, 20.0))
sketch16.addConstraint(Sketcher.Constraint("DistanceY", 0, 1, 0, 2, 51.38))
pocket12 = body.newObject("PartDesign::Pocket", "Pocket011")
pocket12.Profile = sketch16
pocket12.Length = 10
pocket12.Reversed = True

sketch17 = body.newObject("Sketcher::SketchObject", "Sketch016")
sketch17.AttachmentSupport = (doc.getObject("XZ_Plane"), [""])
sketch17.MapMode = "FlatFace"
sketch17.AttachmentOffset = App.Placement(V(0, 0, -3), App.Rotation())
sketch17.addGeometry(Part.LineSegment(V(2, -114, 0), V(2, -52, 0)), False)
sketch17.addGeometry(Part.LineSegment(V(2, -52, 0), V(147, -52, 0)), False)
sketch17.addGeometry(Part.LineSegment(V(147, -52, 0), V(147, -114, 0)), False)
sketch17.addGeometry(Part.LineSegment(V(147, -114, 0), V(2, -114, 0)), False)
sketch17.addConstraint(Sketcher.Constraint("Coincident", 0, 2, 1, 1))
sketch17.addConstraint(Sketcher.Constraint("Coincident", 1, 2, 2, 1))
sketch17.addConstraint(Sketcher.Constraint("Coincident", 2, 2, 3, 1))
sketch17.addConstraint(Sketcher.Constraint("Coincident", 3, 2, 0, 1))
sketch17.addConstraint(Sketcher.Constraint("Vertical", 0))
sketch17.addConstraint(Sketcher.Constraint("Horizontal", 1))
sketch17.addConstraint(Sketcher.Constraint("Vertical", 2))
sketch17.addConstraint(Sketcher.Constraint("Horizontal", 3))
sketch17.addConstraint(Sketcher.Constraint("DistanceX", 1, 1, 1, 2, 145.001761))
sketch17.addConstraint(Sketcher.Constraint("DistanceY", 0, 1, 0, 2, 61.096649))
sketch17.addConstraint(Sketcher.Constraint("DistanceY", 2, 2, -1, 1, 113.555298))
sketch17.addConstraint(Sketcher.Constraint("DistanceX", -1, 1, 0, 2, 1.713222))
pad5 = body.newObject("PartDesign::Pad", "Pad004")
pad5.Profile = sketch17
pad5.Length = 3

sketch18 = body.newObject("Sketcher::SketchObject", "Sketch017")
sketch18.AttachmentSupport = (doc.getObject("XZ_Plane"), [""])
sketch18.MapMode = "FlatFace"
sketch18.AttachmentOffset = App.Placement(V(0, 0, -3), App.Rotation())
sketch18.addGeometry(Part.Circle(V(64, -79.5, 0), V(0, 0, 1), 1.5), False)
sketch18.addGeometry(Part.Circle(V(84, -79.5, 0), V(0, 0, 1), 1.5), False)
sketch18.addGeometry(Part.Circle(V(64, -54.5, 0), V(0, 0, 1), 1.5), False)
sketch18.addGeometry(Part.Circle(V(84, -54.5, 0), V(0, 0, 1), 1.5), False)
sketch18.addConstraint(Sketcher.Constraint("Equal", 0, 1))
sketch18.addConstraint(Sketcher.Constraint("Equal", 1, 2))
sketch18.addConstraint(Sketcher.Constraint("Equal", 2, 3))
sketch18.addConstraint(Sketcher.Constraint("Horizontal", 0, 3, 1, 3))
sketch18.addConstraint(Sketcher.Constraint("Horizontal", 2, 3, 3, 3))
sketch18.addConstraint(Sketcher.Constraint("Vertical", 0, 3, 2, 3))
sketch18.addConstraint(Sketcher.Constraint("Vertical", 1, 3, 3, 3))
sketch18.addConstraint(Sketcher.Constraint("Diameter", 0, 3.0))
sketch18.addConstraint(Sketcher.Constraint("DistanceX", -1, 1, 0, 3, 64.0))
sketch18.addConstraint(Sketcher.Constraint("DistanceX", -1, 1, 1, 3, 84.0))
sketch18.addConstraint(Sketcher.Constraint("DistanceY", 0, 3, 2, 3, 25.0))
sketch18.addConstraint(Sketcher.Constraint("DistanceY", 0, 3, -1, 1, 79.5))
pocket13 = body.newObject("PartDesign::Pocket", "Pocket012")
pocket13.Profile = sketch18
pocket13.Length = 43
pocket13.Reversed = True

sketch19 = body.newObject("Sketcher::SketchObject", "Sketch018")
sketch19.AttachmentSupport = (doc.getObject("XZ_Plane"), [""])
sketch19.MapMode = "FlatFace"
sketch19.addGeometry(Part.LineSegment(V(135, -135, 0), V(135, -83, 0)), False)
sketch19.addGeometry(Part.LineSegment(V(135, -83, 0), V(25, -83, 0)), False)
sketch19.addGeometry(Part.LineSegment(V(25, -83, 0), V(25, -135, 0)), False)
sketch19.addGeometry(Part.LineSegment(V(25, -135, 0), V(135, -135, 0)), False)
sketch19.addConstraint(Sketcher.Constraint("Coincident", 0, 2, 1, 1))
sketch19.addConstraint(Sketcher.Constraint("Coincident", 1, 2, 2, 1))
sketch19.addConstraint(Sketcher.Constraint("Coincident", 2, 2, 3, 1))
sketch19.addConstraint(Sketcher.Constraint("Coincident", 3, 2, 0, 1))
sketch19.addConstraint(Sketcher.Constraint("Vertical", 0))
sketch19.addConstraint(Sketcher.Constraint("Horizontal", 1))
sketch19.addConstraint(Sketcher.Constraint("Vertical", 2))
sketch19.addConstraint(Sketcher.Constraint("Horizontal", 3))
sketch19.addConstraint(Sketcher.Constraint("DistanceY", 0, 2, -1, 1, 83.0))
sketch19.addConstraint(Sketcher.Constraint("DistanceX", -1, 1, 1, 2, 25.0))
sketch19.addConstraint(Sketcher.Constraint("DistanceX", 1, 2, 1, 1, 109.748163))
sketch19.addConstraint(Sketcher.Constraint("DistanceY", 0, 1, 0, 2, 51.975747))
pocket14 = body.newObject("PartDesign::Pocket", "Pocket013")
pocket14.Profile = sketch19
pocket14.Length = 43

sketch20 = body.newObject("Sketcher::SketchObject", "Sketch019")
sketch20.AttachmentSupport = (doc.getObject("XZ_Plane"), [""])
sketch20.MapMode = "FlatFace"
sketch20.addGeometry(Part.LineSegment(V(113, -51, 0), V(113, -120, 0)), False)
sketch20.addGeometry(Part.LineSegment(V(113, -120, 0), V(153, -120, 0)), False)
sketch20.addGeometry(Part.LineSegment(V(153, -120, 0), V(153, -51, 0)), False)
sketch20.addGeometry(Part.LineSegment(V(153, -51, 0), V(113, -51, 0)), False)
sketch20.addConstraint(Sketcher.Constraint("Coincident", 0, 2, 1, 1))
sketch20.addConstraint(Sketcher.Constraint("Coincident", 1, 2, 2, 1))
sketch20.addConstraint(Sketcher.Constraint("Coincident", 2, 2, 3, 1))
sketch20.addConstraint(Sketcher.Constraint("Coincident", 3, 2, 0, 1))
sketch20.addConstraint(Sketcher.Constraint("Vertical", 0))
sketch20.addConstraint(Sketcher.Constraint("Horizontal", 1))
sketch20.addConstraint(Sketcher.Constraint("Vertical", 2))
sketch20.addConstraint(Sketcher.Constraint("Horizontal", 3))
sketch20.addConstraint(Sketcher.Constraint("DistanceX", -1, 1, 0, 2, 113.0))
sketch20.addConstraint(Sketcher.Constraint("DistanceY", 2, 2, -1, 1, 51.38))
sketch20.addConstraint(Sketcher.Constraint("DistanceX", 1, 1, 1, 2, 39.731049))
sketch20.addConstraint(Sketcher.Constraint("DistanceY", 0, 2, 0, 1, 68.636927))
pocket15 = body.newObject("PartDesign::Pocket", "Pocket014")
pocket15.Profile = sketch20
pocket15.Length = 43

sketch21 = body.newObject("Sketcher::SketchObject", "Sketch020")
sketch21.AttachmentSupport = (doc.getObject("XZ_Plane"), [""])
sketch21.MapMode = "FlatFace"
sketch21.addGeometry(Part.LineSegment(V(35, -117, 0), V(35, -51, 0)), False)
sketch21.addGeometry(Part.LineSegment(V(35, -51, 0), V(-3, -51, 0)), False)
sketch21.addGeometry(Part.LineSegment(V(-3, -51, 0), V(-3, -117, 0)), False)
sketch21.addGeometry(Part.LineSegment(V(-3, -117, 0), V(35, -117, 0)), False)
sketch21.addConstraint(Sketcher.Constraint("Coincident", 0, 2, 1, 1))
sketch21.addConstraint(Sketcher.Constraint("Coincident", 1, 2, 2, 1))
sketch21.addConstraint(Sketcher.Constraint("Coincident", 2, 2, 3, 1))
sketch21.addConstraint(Sketcher.Constraint("Coincident", 3, 2, 0, 1))
sketch21.addConstraint(Sketcher.Constraint("Vertical", 0))
sketch21.addConstraint(Sketcher.Constraint("Horizontal", 1))
sketch21.addConstraint(Sketcher.Constraint("Vertical", 2))
sketch21.addConstraint(Sketcher.Constraint("Horizontal", 3))
sketch21.addConstraint(Sketcher.Constraint("DistanceX", -1, 1, 0, 2, 35.0))
sketch21.addConstraint(Sketcher.Constraint("DistanceY", 0, 2, -1, 1, 51.38))
sketch21.addConstraint(Sketcher.Constraint("DistanceY", 0, 1, 0, 2, 65.519762))
sketch21.addConstraint(Sketcher.Constraint("DistanceX", 1, 2, 1, 1, 37.931058))
pocket16 = body.newObject("PartDesign::Pocket", "Pocket015")
pocket16.Profile = sketch21
pocket16.Length = 43

sketch22 = body.newObject("Sketcher::SketchObject", "Sketch021")
sketch22.AttachmentSupport = (doc.getObject("XZ_Plane"), [""])
sketch22.MapMode = "FlatFace"
sketch22.addGeometry(Part.LineSegment(V(38, -68, 0), V(38, -80, 0)), False)
sketch22.addGeometry(Part.LineSegment(V(38, -80, 0), V(42, -80, 0)), False)
sketch22.addGeometry(Part.LineSegment(V(42, -80, 0), V(42, -68, 0)), False)
sketch22.addGeometry(Part.LineSegment(V(42, -68, 0), V(38, -68, 0)), False)
sketch22.addGeometry(Part.LineSegment(V(38, -54, 0), V(38, -66, 0)), False)
sketch22.addGeometry(Part.LineSegment(V(38, -66, 0), V(42, -66, 0)), False)
sketch22.addGeometry(Part.LineSegment(V(42, -66, 0), V(42, -54, 0)), False)
sketch22.addGeometry(Part.LineSegment(V(42, -54, 0), V(38, -54, 0)), False)
sketch22.addGeometry(Part.LineSegment(V(106, -68, 0), V(106, -80, 0)), False)
sketch22.addGeometry(Part.LineSegment(V(106, -80, 0), V(110, -80, 0)), False)
sketch22.addGeometry(Part.LineSegment(V(110, -80, 0), V(110, -68, 0)), False)
sketch22.addGeometry(Part.LineSegment(V(110, -68, 0), V(106, -68, 0)), False)
sketch22.addGeometry(Part.LineSegment(V(106, -54, 0), V(106, -66, 0)), False)
sketch22.addGeometry(Part.LineSegment(V(106, -66, 0), V(110, -66, 0)), False)
sketch22.addGeometry(Part.LineSegment(V(110, -66, 0), V(110, -54, 0)), False)
sketch22.addGeometry(Part.LineSegment(V(110, -54, 0), V(106, -54, 0)), False)
sketch22.addConstraint(Sketcher.Constraint("Coincident", 0, 2, 1, 1))
sketch22.addConstraint(Sketcher.Constraint("Coincident", 1, 2, 2, 1))
sketch22.addConstraint(Sketcher.Constraint("Coincident", 2, 2, 3, 1))
sketch22.addConstraint(Sketcher.Constraint("Coincident", 3, 2, 0, 1))
sketch22.addConstraint(Sketcher.Constraint("Coincident", 4, 2, 5, 1))
sketch22.addConstraint(Sketcher.Constraint("Coincident", 5, 2, 6, 1))
sketch22.addConstraint(Sketcher.Constraint("Coincident", 6, 2, 7, 1))
sketch22.addConstraint(Sketcher.Constraint("Coincident", 7, 2, 4, 1))
sketch22.addConstraint(Sketcher.Constraint("Coincident", 8, 2, 9, 1))
sketch22.addConstraint(Sketcher.Constraint("Coincident", 9, 2, 10, 1))
sketch22.addConstraint(Sketcher.Constraint("Coincident", 10, 2, 11, 1))
sketch22.addConstraint(Sketcher.Constraint("Coincident", 11, 2, 8, 1))
sketch22.addConstraint(Sketcher.Constraint("Coincident", 12, 2, 13, 1))
sketch22.addConstraint(Sketcher.Constraint("Coincident", 13, 2, 14, 1))
sketch22.addConstraint(Sketcher.Constraint("Coincident", 14, 2, 15, 1))
sketch22.addConstraint(Sketcher.Constraint("Coincident", 15, 2, 12, 1))
sketch22.addConstraint(Sketcher.Constraint("Vertical", 0))
sketch22.addConstraint(Sketcher.Constraint("Horizontal", 1))
sketch22.addConstraint(Sketcher.Constraint("Vertical", 2))
sketch22.addConstraint(Sketcher.Constraint("Horizontal", 3))
sketch22.addConstraint(Sketcher.Constraint("Vertical", 4))
sketch22.addConstraint(Sketcher.Constraint("Horizontal", 5))
sketch22.addConstraint(Sketcher.Constraint("Vertical", 6))
sketch22.addConstraint(Sketcher.Constraint("Horizontal", 7))
sketch22.addConstraint(Sketcher.Constraint("Vertical", 8))
sketch22.addConstraint(Sketcher.Constraint("Horizontal", 9))
sketch22.addConstraint(Sketcher.Constraint("Vertical", 10))
sketch22.addConstraint(Sketcher.Constraint("Horizontal", 11))
sketch22.addConstraint(Sketcher.Constraint("Vertical", 12))
sketch22.addConstraint(Sketcher.Constraint("Horizontal", 13))
sketch22.addConstraint(Sketcher.Constraint("Vertical", 14))
sketch22.addConstraint(Sketcher.Constraint("Horizontal", 15))
sketch22.addConstraint(Sketcher.Constraint("Horizontal", 1, 2, 8, 2))
sketch22.addConstraint(Sketcher.Constraint("Horizontal", 3, 2, 10, 2))
sketch22.addConstraint(Sketcher.Constraint("Horizontal", 5, 2, 12, 2))
sketch22.addConstraint(Sketcher.Constraint("Horizontal", 7, 2, 14, 2))
sketch22.addConstraint(Sketcher.Constraint("Vertical", 3, 2, 4, 2))
sketch22.addConstraint(Sketcher.Constraint("Vertical", 2, 2, 5, 2))
sketch22.addConstraint(Sketcher.Constraint("Vertical", 11, 2, 12, 2))
sketch22.addConstraint(Sketcher.Constraint("Vertical", 10, 2, 13, 2))
sketch22.addConstraint(Sketcher.Constraint("Equal", 7, 9))
sketch22.addConstraint(Sketcher.Constraint("Equal", 2, 4))
sketch22.addConstraint(Sketcher.Constraint("DistanceX", 1, 1, 1, 2, 4.0))
sketch22.addConstraint(Sketcher.Constraint("DistanceY", 0, 2, 0, 1, 12.0))
sketch22.addConstraint(Sketcher.Constraint("DistanceX", -1, 1, 0, 2, 38.0))
sketch22.addConstraint(Sketcher.Constraint("DistanceY", 0, 2, -1, 1, 80.0))
sketch22.addConstraint(Sketcher.Constraint("DistanceY", 4, 2, -1, 1, 66.0))
sketch22.addConstraint(Sketcher.Constraint("DistanceX", -1, 1, 8, 2, 106.0))
pocket17 = body.newObject("PartDesign::Pocket", "Pocket016")
pocket17.Profile = sketch22
pocket17.Length = 43

doc.recompute()
